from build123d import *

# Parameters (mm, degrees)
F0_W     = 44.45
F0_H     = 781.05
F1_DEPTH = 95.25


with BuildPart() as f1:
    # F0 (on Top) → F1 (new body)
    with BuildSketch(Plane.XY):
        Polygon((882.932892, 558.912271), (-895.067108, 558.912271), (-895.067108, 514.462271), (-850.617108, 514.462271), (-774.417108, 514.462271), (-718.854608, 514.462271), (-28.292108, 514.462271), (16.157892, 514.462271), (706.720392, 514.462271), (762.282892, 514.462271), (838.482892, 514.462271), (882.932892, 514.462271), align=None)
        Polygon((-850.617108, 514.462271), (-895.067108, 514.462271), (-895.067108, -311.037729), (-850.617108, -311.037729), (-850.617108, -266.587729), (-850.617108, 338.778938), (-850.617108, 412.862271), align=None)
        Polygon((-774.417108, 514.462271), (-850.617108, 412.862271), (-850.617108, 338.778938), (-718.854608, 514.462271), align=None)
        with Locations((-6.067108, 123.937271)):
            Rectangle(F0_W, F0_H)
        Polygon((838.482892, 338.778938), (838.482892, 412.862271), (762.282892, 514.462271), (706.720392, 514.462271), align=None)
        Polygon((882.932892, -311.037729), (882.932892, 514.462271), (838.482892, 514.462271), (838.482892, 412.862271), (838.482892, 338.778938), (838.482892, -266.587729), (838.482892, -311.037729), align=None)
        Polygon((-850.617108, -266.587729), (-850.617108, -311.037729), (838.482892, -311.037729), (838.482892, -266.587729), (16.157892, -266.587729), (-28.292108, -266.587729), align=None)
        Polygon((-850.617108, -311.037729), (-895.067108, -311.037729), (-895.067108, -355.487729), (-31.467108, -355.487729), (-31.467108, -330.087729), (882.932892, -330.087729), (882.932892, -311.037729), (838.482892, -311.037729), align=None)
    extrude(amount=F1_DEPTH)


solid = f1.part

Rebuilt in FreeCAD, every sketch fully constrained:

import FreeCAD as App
import Part
import Sketcher

V = App.Vector
Q = App.Units.Quantity


def add_polygon(sketch, points):
    """Adds a closed chain of lines whose ends are joined by coincident constraints."""
    first, n = sketch.GeometryCount, len(points)
    for a, b in zip(points, points[1:] + points[:1]):
        sketch.addGeometry(Part.LineSegment(App.Vector(*a, 0), App.Vector(*b, 0)), False)
    for i in range(n):
        sketch.addConstraint(Sketcher.Constraint("Coincident", first + i, 2, first + (i + 1) % n, 1))

doc = App.newDocument("Part")
params = doc.addObject("Spreadsheet::Sheet", "Params")
for row, (alias, value) in enumerate([
    ("sketch1_width", "70 in"),
    ("sketch1_width2", "34 in"),
    ("sketch1_width3", "3 in"),
    ("sketch1_height", "1 in"),
    ("sketch1_height2", "4 in"),
    ("pad1_length", "3.75 in"),
], start=1):
    params.set(f"A{row}", alias)
    params.set(f"B{row}", "=" + value)
    params.setAlias(f"B{row}", alias)

body = doc.addObject("PartDesign::Body", "Body")

# Sketch on XY plane
sketch1 = body.newObject("Sketcher::SketchObject", "Sketch")
sketch1.AttachmentSupport = (doc.getObject("XY_Plane"), [""])
sketch1.MapMode = "FlatFace"
add_polygon(sketch1, [(883, 559), (-895, 559), (-895, -355), (-31, -355), (-31, -330), (883, -330)])  # lines 0-5
add_polygon(sketch1, [(-851, -267), (-851, 339), (-719, 514), (-28, 514), (-28, -267)])  # lines 6-10
add_polygon(sketch1, [(16, -267), (16, 514), (707, 514), (838, 339), (838, -267)])  # lines 11-15
add_polygon(sketch1, [(838, 413), (762, 514), (838, 514)])  # lines 16-18
add_polygon(sketch1, [(-851, 413), (-851, 514), (-774, 514)])  # lines 19-21
sketch1.addConstraint(Sketcher.Constraint("Horizontal", 0))
sketch1.addConstraint(Sketcher.Constraint("Vertical", 1))
sketch1.addConstraint(Sketcher.Constraint("Horizontal", 2))
sketch1.addConstraint(Sketcher.Constraint("Vertical", 3))
sketch1.addConstraint(Sketcher.Constraint("Horizontal", 4))
sketch1.addConstraint(Sketcher.Constraint("Vertical", 5))
sketch1.addConstraint(Sketcher.Constraint("Vertical", 6))
sketch1.addConstraint(Sketcher.Constraint("Horizontal", 8))
sketch1.addConstraint(Sketcher.Constraint("Vertical", 9))
sketch1.addConstraint(Sketcher.Constraint("Horizontal", 10))
sketch1.addConstraint(Sketcher.Constraint("Vertical", 11))
sketch1.addConstraint(Sketcher.Constraint("Horizontal", 12))
sketch1.addConstraint(Sketcher.Constraint("Vertical", 14))
sketch1.addConstraint(Sketcher.Constraint("Horizontal", 15))
sketch1.addConstraint(Sketcher.Constraint("Horizontal", 17))
sketch1.addConstraint(Sketcher.Constraint("Vertical", 18))
sketch1.addConstraint(Sketcher.Constraint("Vertical", 19))
sketch1.addConstraint(Sketcher.Constraint("Horizontal", 20))
sketch1.addConstraint(Sketcher.Constraint("Parallel", 13, 16))
sketch1.addConstraint(Sketcher.Constraint("Parallel", 7, 21))
sketch1.addConstraint(Sketcher.Constraint("Horizontal", 8, 2, 11, 2))
sketch1.addConstraint(Sketcher.Constraint("Horizontal", 6, 2, 13, 2))
sketch1.addConstraint(Sketcher.Constraint("Horizontal", 10, 2, 14, 2))
sketch1.addConstraint(Sketcher.Constraint("Horizontal", 12, 2, 16, 2))
sketch1.addConstraint(Sketcher.Constraint("Horizontal", 17, 2, 19, 2))
sketch1.addConstraint(Sketcher.Constraint("Horizontal", 18, 2, 21, 2))
sketch1.addConstraint(Sketcher.Constraint("Vertical", 14, 2, 17, 2))
sketch1.addConstraint(Sketcher.Constraint("Vertical", 10, 2, 19, 2))
sketch1.addConstraint(Sketcher.Constraint("Equal", 8, 12))
sketch1.addConstraint(Sketcher.Constraint("Equal", 10, 15))
sketch1.addConstraint(Sketcher.Constraint("Equal", 4, 1))
sketch1.addConstraint(Sketcher.Constraint("DistanceX", 0, 2, 0, 1, Q("70 in")))
sketch1.addConstraint(Sketcher.Constraint("DistanceX", 2, 1, 2, 2, Q("34 in")))
sketch1.addConstraint(Sketcher.Constraint("DistanceX", 17, 1, 17, 2, Q("3 in")))
sketch1.addConstraint(Sketcher.Constraint("DistanceY", 3, 1, 3, 2, Q("1 in")))
sketch1.addConstraint(Sketcher.Constraint("DistanceY", 18, 2, 18, 1, Q("4 in")))
sketch1.addConstraint(Sketcher.Constraint("DistanceY", 9, 2, 9, 1, Q("30.75 in")))
sketch1.addConstraint(Sketcher.Constraint("DistanceY", 3, 2, 9, 2, Q("2.5 in")))
sketch1.addConstraint(Sketcher.Constraint("DistanceX", 8, 1, 8, 2, Q("27.1875 in")))
sketch1.addConstraint(Sketcher.Constraint("DistanceX", 10, 2, 10, 1, Q("32.375 in")))
sketch1.addConstraint(Sketcher.Constraint("DistanceX", 0, 2, 6, 2, Q("1.75 in")))
sketch1.addConstraint(Sketcher.Constraint("DistanceX", 8, 2, 11, 2, Q("1.75 in")))
sketch1.addConstraint(Sketcher.Constraint("DistanceX", 0, 2, -1, 1, Q("895.067108 mm")))
sketch1.addConstraint(Sketcher.Constraint("DistanceY", -1, 1, 0, 2, Q("558.912271 mm")))
sketch1.setExpression("Constraints[53]", "Params.sketch1_width")
sketch1.setExpression("Constraints[54]", "Params.sketch1_width2")
sketch1.setExpression("Constraints[55]", "Params.sketch1_width3")
sketch1.setExpression("Constraints[56]", "Params.sketch1_height")
sketch1.setExpression("Constraints[57]", "Params.sketch1_height2")
pad1 = body.newObject("PartDesign::Pad", "Pad")
pad1.Profile = sketch1
pad1.setExpression("Length", "Params.pad1_length")

doc.recompute()
